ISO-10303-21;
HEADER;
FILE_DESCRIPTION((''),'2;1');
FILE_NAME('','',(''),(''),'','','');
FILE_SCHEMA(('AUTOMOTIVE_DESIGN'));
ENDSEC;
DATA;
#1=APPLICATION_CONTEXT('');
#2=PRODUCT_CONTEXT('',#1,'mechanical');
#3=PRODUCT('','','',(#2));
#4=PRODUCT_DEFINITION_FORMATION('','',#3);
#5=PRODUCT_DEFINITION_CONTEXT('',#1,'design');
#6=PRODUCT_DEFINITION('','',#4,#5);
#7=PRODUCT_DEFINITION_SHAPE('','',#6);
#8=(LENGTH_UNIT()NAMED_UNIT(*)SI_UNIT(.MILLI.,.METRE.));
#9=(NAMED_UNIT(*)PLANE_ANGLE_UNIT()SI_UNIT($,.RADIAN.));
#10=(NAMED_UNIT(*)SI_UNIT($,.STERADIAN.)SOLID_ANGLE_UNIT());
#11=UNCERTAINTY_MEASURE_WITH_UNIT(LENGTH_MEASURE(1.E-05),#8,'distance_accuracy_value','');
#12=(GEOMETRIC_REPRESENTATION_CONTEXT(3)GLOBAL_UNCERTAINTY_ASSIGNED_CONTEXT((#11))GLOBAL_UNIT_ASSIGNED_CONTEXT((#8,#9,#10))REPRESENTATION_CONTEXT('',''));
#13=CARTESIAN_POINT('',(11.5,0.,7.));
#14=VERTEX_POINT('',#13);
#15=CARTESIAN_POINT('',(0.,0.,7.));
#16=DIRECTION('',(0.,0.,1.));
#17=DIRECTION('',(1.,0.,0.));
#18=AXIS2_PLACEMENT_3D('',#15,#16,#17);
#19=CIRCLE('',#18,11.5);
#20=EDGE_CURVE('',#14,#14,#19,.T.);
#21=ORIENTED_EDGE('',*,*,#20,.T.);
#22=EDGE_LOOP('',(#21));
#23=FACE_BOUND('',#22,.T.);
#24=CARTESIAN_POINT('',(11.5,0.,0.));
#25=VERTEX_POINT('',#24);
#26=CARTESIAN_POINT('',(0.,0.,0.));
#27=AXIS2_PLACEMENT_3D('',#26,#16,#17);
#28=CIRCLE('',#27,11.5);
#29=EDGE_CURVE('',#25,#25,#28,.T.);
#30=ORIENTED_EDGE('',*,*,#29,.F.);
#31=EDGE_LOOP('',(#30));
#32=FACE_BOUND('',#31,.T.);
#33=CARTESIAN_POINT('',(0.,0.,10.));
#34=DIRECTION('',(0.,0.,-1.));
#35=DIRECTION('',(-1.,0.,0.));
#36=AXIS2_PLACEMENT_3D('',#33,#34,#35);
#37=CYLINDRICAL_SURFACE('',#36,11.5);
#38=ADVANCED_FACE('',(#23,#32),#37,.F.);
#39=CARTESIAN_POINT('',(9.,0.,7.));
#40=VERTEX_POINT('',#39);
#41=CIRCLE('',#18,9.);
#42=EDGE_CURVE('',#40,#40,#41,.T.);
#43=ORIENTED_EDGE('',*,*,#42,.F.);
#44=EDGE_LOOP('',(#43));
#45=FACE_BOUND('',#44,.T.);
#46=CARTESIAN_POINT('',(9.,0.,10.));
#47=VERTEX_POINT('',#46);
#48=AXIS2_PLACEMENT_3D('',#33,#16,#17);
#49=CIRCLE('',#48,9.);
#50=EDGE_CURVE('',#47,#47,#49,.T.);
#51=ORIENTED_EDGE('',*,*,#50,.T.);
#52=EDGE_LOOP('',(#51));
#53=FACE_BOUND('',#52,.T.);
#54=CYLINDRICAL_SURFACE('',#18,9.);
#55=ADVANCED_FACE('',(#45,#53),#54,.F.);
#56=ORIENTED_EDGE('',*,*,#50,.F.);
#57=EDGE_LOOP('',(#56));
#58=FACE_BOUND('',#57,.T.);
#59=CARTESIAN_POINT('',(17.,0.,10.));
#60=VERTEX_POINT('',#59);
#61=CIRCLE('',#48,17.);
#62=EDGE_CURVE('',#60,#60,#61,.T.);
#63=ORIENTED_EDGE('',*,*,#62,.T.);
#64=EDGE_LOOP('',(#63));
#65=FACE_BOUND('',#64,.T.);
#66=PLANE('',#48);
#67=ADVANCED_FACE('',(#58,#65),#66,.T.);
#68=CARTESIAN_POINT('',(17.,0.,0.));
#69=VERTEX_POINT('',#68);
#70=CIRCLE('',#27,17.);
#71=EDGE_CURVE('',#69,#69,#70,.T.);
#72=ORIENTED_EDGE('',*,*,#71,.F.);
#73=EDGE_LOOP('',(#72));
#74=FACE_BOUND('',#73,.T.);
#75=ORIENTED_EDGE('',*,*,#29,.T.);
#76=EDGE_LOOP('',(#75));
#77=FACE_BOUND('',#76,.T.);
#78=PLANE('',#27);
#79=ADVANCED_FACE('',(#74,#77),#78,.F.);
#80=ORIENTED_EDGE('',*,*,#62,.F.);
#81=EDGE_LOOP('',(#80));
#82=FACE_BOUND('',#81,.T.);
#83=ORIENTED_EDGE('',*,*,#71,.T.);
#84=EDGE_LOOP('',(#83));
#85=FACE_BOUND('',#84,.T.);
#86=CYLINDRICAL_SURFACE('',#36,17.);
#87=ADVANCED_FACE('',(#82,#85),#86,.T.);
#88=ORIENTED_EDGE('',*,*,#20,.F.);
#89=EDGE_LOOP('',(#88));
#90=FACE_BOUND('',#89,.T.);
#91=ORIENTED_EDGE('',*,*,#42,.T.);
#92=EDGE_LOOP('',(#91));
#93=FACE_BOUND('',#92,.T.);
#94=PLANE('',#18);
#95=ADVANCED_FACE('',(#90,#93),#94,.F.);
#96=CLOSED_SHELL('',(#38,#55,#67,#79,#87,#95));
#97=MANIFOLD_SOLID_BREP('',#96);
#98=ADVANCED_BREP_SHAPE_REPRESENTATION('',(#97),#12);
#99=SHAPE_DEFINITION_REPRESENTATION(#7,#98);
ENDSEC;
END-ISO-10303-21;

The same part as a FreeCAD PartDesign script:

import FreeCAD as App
import Part
import Sketcher

V = App.Vector

doc = App.newDocument("Part")
body = doc.addObject("PartDesign::Body", "Body")

# Sketch on XY plane
sketch1 = body.newObject("Sketcher::SketchObject", "Sketch")
sketch1.AttachmentSupport = (doc.getObject("XY_Plane"), [""])
sketch1.MapMode = "FlatFace"
sketch1.addGeometry(Part.Circle(V(0, 0, 0), V(0, 0, 1), 17), False)
sketch1.addGeometry(Part.Circle(V(0, 0, 0), V(0, 0, 1), 12), False)
sketch1.addConstraint(Sketcher.Constraint("Coincident", 0, 3, -1, 1))
sketch1.addConstraint(Sketcher.Constraint("Coincident", 1, 3, -1, 1))
sketch1.addConstraint(Sketcher.Constraint("Diameter", 0, 34.0))
sketch1.addConstraint(Sketcher.Constraint("Diameter", 1, 23.0))
pad1 = body.newObject("PartDesign::Pad", "Pad")
pad1.Profile = sketch1
pad1.Length = 10

# Sketch on XY plane
sketch2 = body.newObject("Sketcher::SketchObject", "Sketch001")
sketch2.AttachmentSupport = (doc.getObject("XY_Plane"), [""])
sketch2.MapMode = "FlatFace"
sketch2.AttachmentOffset = App.Placement(V(0, 0, 7), App.Rotation())
sketch2.addGeometry(Part.Circle(V(0, 0, 0), V(0, 0, 1), 12), False)
sketch2.addGeometry(Part.Circle(V(0, 0, 0), V(0, 0, 1), 9), False)
sketch2.addConstraint(Sketcher.Constraint("Coincident", 0, 3, -1, 1))
sketch2.addConstraint(Sketcher.Constraint("Coincident", 1, 3, -1, 1))
sketch2.addConstraint(Sketcher.Constraint("Diameter", 0, 23.0))
sketch2.addConstraint(Sketcher.Constraint("Diameter", 1, 18.0))
pad2 = body.newObject("PartDesign::Pad", "Pad001")
pad2.Profile = sketch2
pad2.Length = 3

doc.recompute()
